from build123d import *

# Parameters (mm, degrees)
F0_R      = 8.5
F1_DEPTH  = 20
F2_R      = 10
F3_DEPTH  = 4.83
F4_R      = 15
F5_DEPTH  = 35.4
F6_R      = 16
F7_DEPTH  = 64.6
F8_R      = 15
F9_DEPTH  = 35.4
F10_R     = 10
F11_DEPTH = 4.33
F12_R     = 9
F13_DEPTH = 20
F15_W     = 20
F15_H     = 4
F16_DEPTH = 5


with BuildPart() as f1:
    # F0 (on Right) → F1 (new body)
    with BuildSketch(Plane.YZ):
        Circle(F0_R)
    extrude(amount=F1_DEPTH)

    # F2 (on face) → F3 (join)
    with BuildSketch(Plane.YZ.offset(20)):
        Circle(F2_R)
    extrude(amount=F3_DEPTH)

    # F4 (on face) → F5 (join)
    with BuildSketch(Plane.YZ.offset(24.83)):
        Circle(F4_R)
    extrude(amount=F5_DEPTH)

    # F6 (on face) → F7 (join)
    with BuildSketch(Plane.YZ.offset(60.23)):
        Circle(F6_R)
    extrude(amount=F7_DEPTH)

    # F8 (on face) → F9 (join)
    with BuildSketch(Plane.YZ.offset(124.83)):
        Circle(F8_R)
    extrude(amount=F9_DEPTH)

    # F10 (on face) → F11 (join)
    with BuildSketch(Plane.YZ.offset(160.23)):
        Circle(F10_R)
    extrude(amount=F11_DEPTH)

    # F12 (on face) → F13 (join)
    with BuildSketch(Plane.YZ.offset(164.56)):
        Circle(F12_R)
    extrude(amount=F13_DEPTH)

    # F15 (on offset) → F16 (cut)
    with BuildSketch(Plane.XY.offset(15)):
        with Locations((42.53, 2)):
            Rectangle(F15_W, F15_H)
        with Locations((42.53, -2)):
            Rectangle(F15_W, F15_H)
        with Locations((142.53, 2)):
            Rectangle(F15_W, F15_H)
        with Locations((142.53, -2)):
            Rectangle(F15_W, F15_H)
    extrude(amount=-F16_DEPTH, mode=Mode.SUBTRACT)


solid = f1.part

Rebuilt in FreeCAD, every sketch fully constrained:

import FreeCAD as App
import Part
import Sketcher

V = App.Vector
Q = App.Units.Quantity

doc = App.newDocument("Part")
params = doc.addObject("Spreadsheet::Sheet", "Params")
for row, (alias, value) in enumerate([
    ("sketch1_diameter", "17 mm"),
    ("pad1_length", "20 mm"),
    ("sketch2_diameter", "20 mm"),
    ("pad2_length", "4.83 mm"),
    ("sketch3_diameter", "30 mm"),
    ("pad3_length", "35.4 mm"),
    ("sketch4_diameter", "32 mm"),
    ("pad4_length", "64.6 mm"),
    ("sketch5_diameter", "30 mm"),
    ("pad5_length", "35.4 mm"),
    ("sketch6_diameter", "20 mm"),
    ("pad6_length", "4.33 mm"),
    ("sketch7_diameter", "18 mm"),
    ("pad7_length", "20 mm"),
    ("sketch8_width", "20 mm"),
    ("sketch8_height", "8 mm"),
    ("pocket1_length", "5 mm"),
], start=1):
    params.set(f"A{row}", alias)
    params.set(f"B{row}", "=" + value)
    params.setAlias(f"B{row}", alias)

body = doc.addObject("PartDesign::Body", "Body")

# Sketch on YZ plane
sketch1 = body.newObject("Sketcher::SketchObject", "Sketch")
sketch1.AttachmentSupport = (doc.getObject("YZ_Plane"), [""])
sketch1.MapMode = "FlatFace"
sketch1.addGeometry(Part.Circle(V(0, 0, 0), V(0, 0, 1), 8), False)
sketch1.addConstraint([
    Sketcher.Constraint("Coincident", 0, 3, -1, 1),
    Sketcher.Constraint("Diameter", 0, Q("17 mm")),
])
sketch1.setExpression("Constraints[1]", "Params.sketch1_diameter")
pad1 = body.newObject("PartDesign::Pad", "Pad")
pad1.Profile = sketch1
pad1.setExpression("Length", "Params.pad1_length")

# Sketch on YZ plane
sketch2 = body.newObject("Sketcher::SketchObject", "Sketch001")
sketch2.AttachmentSupport = (doc.getObject("YZ_Plane"), [""])
sketch2.MapMode = "FlatFace"
sketch2.AttachmentOffset = App.Placement(V(0, 0, 20), App.Rotation())
sketch2.addGeometry(Part.Circle(V(0, 0, 0), V(0, 0, 1), 10), False)
sketch2.addConstraint([
    Sketcher.Constraint("Coincident", 0, 3, -1, 1),
    Sketcher.Constraint("Diameter", 0, Q("20 mm")),
])
sketch2.setExpression("Constraints[1]", "Params.sketch2_diameter")
pad2 = body.newObject("PartDesign::Pad", "Pad001")
pad2.Profile = sketch2
pad2.setExpression("Length", "Params.pad2_length")

# Sketch on YZ plane
sketch3 = body.newObject("Sketcher::SketchObject", "Sketch002")
sketch3.AttachmentSupport = (doc.getObject("YZ_Plane"), [""])
sketch3.MapMode = "FlatFace"
sketch3.AttachmentOffset = App.Placement(V(0, 0, 24.83), App.Rotation())
sketch3.addGeometry(Part.Circle(V(0, 0, 0), V(0, 0, 1), 15), False)
sketch3.addConstraint([
    Sketcher.Constraint("Coincident", 0, 3, -1, 1),
    Sketcher.Constraint("Diameter", 0, Q("30 mm")),
])
sketch3.setExpression("Constraints[1]", "Params.sketch3_diameter")
pad3 = body.newObject("PartDesign::Pad", "Pad002")
pad3.Profile = sketch3
pad3.setExpression("Length", "Params.pad3_length")

# Sketch on YZ plane
sketch4 = body.newObject("Sketcher::SketchObject", "Sketch003")
sketch4.AttachmentSupport = (doc.getObject("YZ_Plane"), [""])
sketch4.MapMode = "FlatFace"
sketch4.AttachmentOffset = App.Placement(V(0, 0, 60.23), App.Rotation())
sketch4.addGeometry(Part.Circle(V(0, 0, 0), V(0, 0, 1), 16), False)
sketch4.addConstraint([
    Sketcher.Constraint("Coincident", 0, 3, -1, 1),
    Sketcher.Constraint("Diameter", 0, Q("32 mm")),
])
sketch4.setExpression("Constraints[1]", "Params.sketch4_diameter")
pad4 = body.newObject("PartDesign::Pad", "Pad003")
pad4.Profile = sketch4
pad4.setExpression("Length", "Params.pad4_length")

# Sketch on YZ plane
sketch5 = body.newObject("Sketcher::SketchObject", "Sketch004")
sketch5.AttachmentSupport = (doc.getObject("YZ_Plane"), [""])
sketch5.MapMode = "FlatFace"
sketch5.AttachmentOffset = App.Placement(V(0, 0, 124.83), App.Rotation())
sketch5.addGeometry(Part.Circle(V(0, 0, 0), V(0, 0, 1), 15), False)
sketch5.addConstraint([
    Sketcher.Constraint("Coincident", 0, 3, -1, 1),
    Sketcher.Constraint("Diameter", 0, Q("30 mm")),
])
sketch5.setExpression("Constraints[1]", "Params.sketch5_diameter")
pad5 = body.newObject("PartDesign::Pad", "Pad004")
pad5.Profile = sketch5
pad5.setExpression("Length", "Params.pad5_length")

# Sketch on YZ plane
sketch6 = body.newObject("Sketcher::SketchObject", "Sketch005")
sketch6.AttachmentSupport = (doc.getObject("YZ_Plane"), [""])
sketch6.MapMode = "FlatFace"
sketch6.AttachmentOffset = App.Placement(V(0, 0, 160.23), App.Rotation())
sketch6.addGeometry(Part.Circle(V(0, 0, 0), V(0, 0, 1), 10), False)
sketch6.addConstraint([
    Sketcher.Constraint("Coincident", 0, 3, -1, 1),
    Sketcher.Constraint("Diameter", 0, Q("20 mm")),
])
sketch6.setExpression("Constraints[1]", "Params.sketch6_diameter")
pad6 = body.newObject("PartDesign::Pad", "Pad005")
pad6.Profile = sketch6
pad6.setExpression("Length", "Params.pad6_length")

# Sketch on YZ plane
sketch7 = body.newObject("Sketcher::SketchObject", "Sketch006")
sketch7.AttachmentSupport = (doc.getObject("YZ_Plane"), [""])
sketch7.MapMode = "FlatFace"
sketch7.AttachmentOffset = App.Placement(V(0, 0, 164.56), App.Rotation())
sketch7.addGeometry(Part.Circle(V(0, 0, 0), V(0, 0, 1), 9), False)
sketch7.addConstraint([
    Sketcher.Constraint("Coincident", 0, 3, -1, 1),
    Sketcher.Constraint("Diameter", 0, Q("18 mm")),
])
sketch7.setExpression("Constraints[1]", "Params.sketch7_diameter")
pad7 = body.newObject("PartDesign::Pad", "Pad006")
pad7.Profile = sketch7
pad7.setExpression("Length", "Params.pad7_length")

# Sketch on XY plane
sketch8 = body.newObject("Sketcher::SketchObject", "Sketch007")
sketch8.AttachmentSupport = (doc.getObject("XY_Plane"), [""])
sketch8.MapMode = "FlatFace"
sketch8.AttachmentOffset = App.Placement(V(0, 0, 15), App.Rotation())
sketch8.addGeometry([
    Part.LineSegment(V(33, 4, 0), V(33, -4, 0)),  # 0
    Part.LineSegment(V(33, -4, 0), V(53, -4, 0)),  # 1
    Part.LineSegment(V(53, -4, 0), V(53, 4, 0)),  # 2
    Part.LineSegment(V(53, 4, 0), V(33, 4, 0)),  # 3
    Part.LineSegment(V(133, 4, 0), V(133, -4, 0)),  # 4
    Part.LineSegment(V(133, -4, 0), V(153, -4, 0)),  # 5
    Part.LineSegment(V(153, -4, 0), V(153, 4, 0)),  # 6
    Part.LineSegment(V(153, 4, 0), V(133, 4, 0)),  # 7
], False)
sketch8.addConstraint([
    Sketcher.Constraint("Coincident", 0, 2, 1, 1),
    Sketcher.Constraint("Coincident", 1, 2, 2, 1),
    Sketcher.Constraint("Coincident", 2, 2, 3, 1),
    Sketcher.Constraint("Coincident", 3, 2, 0, 1),
    Sketcher.Constraint("Coincident", 4, 2, 5, 1),
    Sketcher.Constraint("Coincident", 5, 2, 6, 1),
    Sketcher.Constraint("Coincident", 6, 2, 7, 1),
    Sketcher.Constraint("Coincident", 7, 2, 4, 1),
    Sketcher.Constraint("Vertical", 0),
    Sketcher.Constraint("Horizontal", 1),
    Sketcher.Constraint("Vertical", 2),
    Sketcher.Constraint("Horizontal", 3),
    Sketcher.Constraint("Vertical", 4),
    Sketcher.Constraint("Horizontal", 5),
    Sketcher.Constraint("Vertical", 6),
    Sketcher.Constraint("Horizontal", 7),
    Sketcher.Constraint("Horizontal", 1, 2, 4, 2),
    Sketcher.Constraint("Horizontal", 3, 2, 6, 2),
    Sketcher.Constraint("Equal", 3, 5),
    Sketcher.Constraint("DistanceX", 1, 1, 1, 2, Q("20 mm")),
    Sketcher.Constraint("DistanceY", 0, 2, 0, 1, Q("8 mm")),
    Sketcher.Constraint("DistanceY", 0, 2, -1, 1, Q("4 mm")),
    Sketcher.Constraint("DistanceX", 1, 2, 4, 2, Q("80 mm")),
    Sketcher.Constraint("DistanceX", -1, 1, 0, 2, Q("32.53 mm")),
])
sketch8.setExpression("Constraints[19]", "Params.sketch8_width")
sketch8.setExpression("Constraints[20]", "Params.sketch8_height")
pocket1 = body.newObject("PartDesign::Pocket", "Pocket")
pocket1.Profile = sketch8
pocket1.setExpression("Length", "Params.pocket1_length")

doc.recompute()
